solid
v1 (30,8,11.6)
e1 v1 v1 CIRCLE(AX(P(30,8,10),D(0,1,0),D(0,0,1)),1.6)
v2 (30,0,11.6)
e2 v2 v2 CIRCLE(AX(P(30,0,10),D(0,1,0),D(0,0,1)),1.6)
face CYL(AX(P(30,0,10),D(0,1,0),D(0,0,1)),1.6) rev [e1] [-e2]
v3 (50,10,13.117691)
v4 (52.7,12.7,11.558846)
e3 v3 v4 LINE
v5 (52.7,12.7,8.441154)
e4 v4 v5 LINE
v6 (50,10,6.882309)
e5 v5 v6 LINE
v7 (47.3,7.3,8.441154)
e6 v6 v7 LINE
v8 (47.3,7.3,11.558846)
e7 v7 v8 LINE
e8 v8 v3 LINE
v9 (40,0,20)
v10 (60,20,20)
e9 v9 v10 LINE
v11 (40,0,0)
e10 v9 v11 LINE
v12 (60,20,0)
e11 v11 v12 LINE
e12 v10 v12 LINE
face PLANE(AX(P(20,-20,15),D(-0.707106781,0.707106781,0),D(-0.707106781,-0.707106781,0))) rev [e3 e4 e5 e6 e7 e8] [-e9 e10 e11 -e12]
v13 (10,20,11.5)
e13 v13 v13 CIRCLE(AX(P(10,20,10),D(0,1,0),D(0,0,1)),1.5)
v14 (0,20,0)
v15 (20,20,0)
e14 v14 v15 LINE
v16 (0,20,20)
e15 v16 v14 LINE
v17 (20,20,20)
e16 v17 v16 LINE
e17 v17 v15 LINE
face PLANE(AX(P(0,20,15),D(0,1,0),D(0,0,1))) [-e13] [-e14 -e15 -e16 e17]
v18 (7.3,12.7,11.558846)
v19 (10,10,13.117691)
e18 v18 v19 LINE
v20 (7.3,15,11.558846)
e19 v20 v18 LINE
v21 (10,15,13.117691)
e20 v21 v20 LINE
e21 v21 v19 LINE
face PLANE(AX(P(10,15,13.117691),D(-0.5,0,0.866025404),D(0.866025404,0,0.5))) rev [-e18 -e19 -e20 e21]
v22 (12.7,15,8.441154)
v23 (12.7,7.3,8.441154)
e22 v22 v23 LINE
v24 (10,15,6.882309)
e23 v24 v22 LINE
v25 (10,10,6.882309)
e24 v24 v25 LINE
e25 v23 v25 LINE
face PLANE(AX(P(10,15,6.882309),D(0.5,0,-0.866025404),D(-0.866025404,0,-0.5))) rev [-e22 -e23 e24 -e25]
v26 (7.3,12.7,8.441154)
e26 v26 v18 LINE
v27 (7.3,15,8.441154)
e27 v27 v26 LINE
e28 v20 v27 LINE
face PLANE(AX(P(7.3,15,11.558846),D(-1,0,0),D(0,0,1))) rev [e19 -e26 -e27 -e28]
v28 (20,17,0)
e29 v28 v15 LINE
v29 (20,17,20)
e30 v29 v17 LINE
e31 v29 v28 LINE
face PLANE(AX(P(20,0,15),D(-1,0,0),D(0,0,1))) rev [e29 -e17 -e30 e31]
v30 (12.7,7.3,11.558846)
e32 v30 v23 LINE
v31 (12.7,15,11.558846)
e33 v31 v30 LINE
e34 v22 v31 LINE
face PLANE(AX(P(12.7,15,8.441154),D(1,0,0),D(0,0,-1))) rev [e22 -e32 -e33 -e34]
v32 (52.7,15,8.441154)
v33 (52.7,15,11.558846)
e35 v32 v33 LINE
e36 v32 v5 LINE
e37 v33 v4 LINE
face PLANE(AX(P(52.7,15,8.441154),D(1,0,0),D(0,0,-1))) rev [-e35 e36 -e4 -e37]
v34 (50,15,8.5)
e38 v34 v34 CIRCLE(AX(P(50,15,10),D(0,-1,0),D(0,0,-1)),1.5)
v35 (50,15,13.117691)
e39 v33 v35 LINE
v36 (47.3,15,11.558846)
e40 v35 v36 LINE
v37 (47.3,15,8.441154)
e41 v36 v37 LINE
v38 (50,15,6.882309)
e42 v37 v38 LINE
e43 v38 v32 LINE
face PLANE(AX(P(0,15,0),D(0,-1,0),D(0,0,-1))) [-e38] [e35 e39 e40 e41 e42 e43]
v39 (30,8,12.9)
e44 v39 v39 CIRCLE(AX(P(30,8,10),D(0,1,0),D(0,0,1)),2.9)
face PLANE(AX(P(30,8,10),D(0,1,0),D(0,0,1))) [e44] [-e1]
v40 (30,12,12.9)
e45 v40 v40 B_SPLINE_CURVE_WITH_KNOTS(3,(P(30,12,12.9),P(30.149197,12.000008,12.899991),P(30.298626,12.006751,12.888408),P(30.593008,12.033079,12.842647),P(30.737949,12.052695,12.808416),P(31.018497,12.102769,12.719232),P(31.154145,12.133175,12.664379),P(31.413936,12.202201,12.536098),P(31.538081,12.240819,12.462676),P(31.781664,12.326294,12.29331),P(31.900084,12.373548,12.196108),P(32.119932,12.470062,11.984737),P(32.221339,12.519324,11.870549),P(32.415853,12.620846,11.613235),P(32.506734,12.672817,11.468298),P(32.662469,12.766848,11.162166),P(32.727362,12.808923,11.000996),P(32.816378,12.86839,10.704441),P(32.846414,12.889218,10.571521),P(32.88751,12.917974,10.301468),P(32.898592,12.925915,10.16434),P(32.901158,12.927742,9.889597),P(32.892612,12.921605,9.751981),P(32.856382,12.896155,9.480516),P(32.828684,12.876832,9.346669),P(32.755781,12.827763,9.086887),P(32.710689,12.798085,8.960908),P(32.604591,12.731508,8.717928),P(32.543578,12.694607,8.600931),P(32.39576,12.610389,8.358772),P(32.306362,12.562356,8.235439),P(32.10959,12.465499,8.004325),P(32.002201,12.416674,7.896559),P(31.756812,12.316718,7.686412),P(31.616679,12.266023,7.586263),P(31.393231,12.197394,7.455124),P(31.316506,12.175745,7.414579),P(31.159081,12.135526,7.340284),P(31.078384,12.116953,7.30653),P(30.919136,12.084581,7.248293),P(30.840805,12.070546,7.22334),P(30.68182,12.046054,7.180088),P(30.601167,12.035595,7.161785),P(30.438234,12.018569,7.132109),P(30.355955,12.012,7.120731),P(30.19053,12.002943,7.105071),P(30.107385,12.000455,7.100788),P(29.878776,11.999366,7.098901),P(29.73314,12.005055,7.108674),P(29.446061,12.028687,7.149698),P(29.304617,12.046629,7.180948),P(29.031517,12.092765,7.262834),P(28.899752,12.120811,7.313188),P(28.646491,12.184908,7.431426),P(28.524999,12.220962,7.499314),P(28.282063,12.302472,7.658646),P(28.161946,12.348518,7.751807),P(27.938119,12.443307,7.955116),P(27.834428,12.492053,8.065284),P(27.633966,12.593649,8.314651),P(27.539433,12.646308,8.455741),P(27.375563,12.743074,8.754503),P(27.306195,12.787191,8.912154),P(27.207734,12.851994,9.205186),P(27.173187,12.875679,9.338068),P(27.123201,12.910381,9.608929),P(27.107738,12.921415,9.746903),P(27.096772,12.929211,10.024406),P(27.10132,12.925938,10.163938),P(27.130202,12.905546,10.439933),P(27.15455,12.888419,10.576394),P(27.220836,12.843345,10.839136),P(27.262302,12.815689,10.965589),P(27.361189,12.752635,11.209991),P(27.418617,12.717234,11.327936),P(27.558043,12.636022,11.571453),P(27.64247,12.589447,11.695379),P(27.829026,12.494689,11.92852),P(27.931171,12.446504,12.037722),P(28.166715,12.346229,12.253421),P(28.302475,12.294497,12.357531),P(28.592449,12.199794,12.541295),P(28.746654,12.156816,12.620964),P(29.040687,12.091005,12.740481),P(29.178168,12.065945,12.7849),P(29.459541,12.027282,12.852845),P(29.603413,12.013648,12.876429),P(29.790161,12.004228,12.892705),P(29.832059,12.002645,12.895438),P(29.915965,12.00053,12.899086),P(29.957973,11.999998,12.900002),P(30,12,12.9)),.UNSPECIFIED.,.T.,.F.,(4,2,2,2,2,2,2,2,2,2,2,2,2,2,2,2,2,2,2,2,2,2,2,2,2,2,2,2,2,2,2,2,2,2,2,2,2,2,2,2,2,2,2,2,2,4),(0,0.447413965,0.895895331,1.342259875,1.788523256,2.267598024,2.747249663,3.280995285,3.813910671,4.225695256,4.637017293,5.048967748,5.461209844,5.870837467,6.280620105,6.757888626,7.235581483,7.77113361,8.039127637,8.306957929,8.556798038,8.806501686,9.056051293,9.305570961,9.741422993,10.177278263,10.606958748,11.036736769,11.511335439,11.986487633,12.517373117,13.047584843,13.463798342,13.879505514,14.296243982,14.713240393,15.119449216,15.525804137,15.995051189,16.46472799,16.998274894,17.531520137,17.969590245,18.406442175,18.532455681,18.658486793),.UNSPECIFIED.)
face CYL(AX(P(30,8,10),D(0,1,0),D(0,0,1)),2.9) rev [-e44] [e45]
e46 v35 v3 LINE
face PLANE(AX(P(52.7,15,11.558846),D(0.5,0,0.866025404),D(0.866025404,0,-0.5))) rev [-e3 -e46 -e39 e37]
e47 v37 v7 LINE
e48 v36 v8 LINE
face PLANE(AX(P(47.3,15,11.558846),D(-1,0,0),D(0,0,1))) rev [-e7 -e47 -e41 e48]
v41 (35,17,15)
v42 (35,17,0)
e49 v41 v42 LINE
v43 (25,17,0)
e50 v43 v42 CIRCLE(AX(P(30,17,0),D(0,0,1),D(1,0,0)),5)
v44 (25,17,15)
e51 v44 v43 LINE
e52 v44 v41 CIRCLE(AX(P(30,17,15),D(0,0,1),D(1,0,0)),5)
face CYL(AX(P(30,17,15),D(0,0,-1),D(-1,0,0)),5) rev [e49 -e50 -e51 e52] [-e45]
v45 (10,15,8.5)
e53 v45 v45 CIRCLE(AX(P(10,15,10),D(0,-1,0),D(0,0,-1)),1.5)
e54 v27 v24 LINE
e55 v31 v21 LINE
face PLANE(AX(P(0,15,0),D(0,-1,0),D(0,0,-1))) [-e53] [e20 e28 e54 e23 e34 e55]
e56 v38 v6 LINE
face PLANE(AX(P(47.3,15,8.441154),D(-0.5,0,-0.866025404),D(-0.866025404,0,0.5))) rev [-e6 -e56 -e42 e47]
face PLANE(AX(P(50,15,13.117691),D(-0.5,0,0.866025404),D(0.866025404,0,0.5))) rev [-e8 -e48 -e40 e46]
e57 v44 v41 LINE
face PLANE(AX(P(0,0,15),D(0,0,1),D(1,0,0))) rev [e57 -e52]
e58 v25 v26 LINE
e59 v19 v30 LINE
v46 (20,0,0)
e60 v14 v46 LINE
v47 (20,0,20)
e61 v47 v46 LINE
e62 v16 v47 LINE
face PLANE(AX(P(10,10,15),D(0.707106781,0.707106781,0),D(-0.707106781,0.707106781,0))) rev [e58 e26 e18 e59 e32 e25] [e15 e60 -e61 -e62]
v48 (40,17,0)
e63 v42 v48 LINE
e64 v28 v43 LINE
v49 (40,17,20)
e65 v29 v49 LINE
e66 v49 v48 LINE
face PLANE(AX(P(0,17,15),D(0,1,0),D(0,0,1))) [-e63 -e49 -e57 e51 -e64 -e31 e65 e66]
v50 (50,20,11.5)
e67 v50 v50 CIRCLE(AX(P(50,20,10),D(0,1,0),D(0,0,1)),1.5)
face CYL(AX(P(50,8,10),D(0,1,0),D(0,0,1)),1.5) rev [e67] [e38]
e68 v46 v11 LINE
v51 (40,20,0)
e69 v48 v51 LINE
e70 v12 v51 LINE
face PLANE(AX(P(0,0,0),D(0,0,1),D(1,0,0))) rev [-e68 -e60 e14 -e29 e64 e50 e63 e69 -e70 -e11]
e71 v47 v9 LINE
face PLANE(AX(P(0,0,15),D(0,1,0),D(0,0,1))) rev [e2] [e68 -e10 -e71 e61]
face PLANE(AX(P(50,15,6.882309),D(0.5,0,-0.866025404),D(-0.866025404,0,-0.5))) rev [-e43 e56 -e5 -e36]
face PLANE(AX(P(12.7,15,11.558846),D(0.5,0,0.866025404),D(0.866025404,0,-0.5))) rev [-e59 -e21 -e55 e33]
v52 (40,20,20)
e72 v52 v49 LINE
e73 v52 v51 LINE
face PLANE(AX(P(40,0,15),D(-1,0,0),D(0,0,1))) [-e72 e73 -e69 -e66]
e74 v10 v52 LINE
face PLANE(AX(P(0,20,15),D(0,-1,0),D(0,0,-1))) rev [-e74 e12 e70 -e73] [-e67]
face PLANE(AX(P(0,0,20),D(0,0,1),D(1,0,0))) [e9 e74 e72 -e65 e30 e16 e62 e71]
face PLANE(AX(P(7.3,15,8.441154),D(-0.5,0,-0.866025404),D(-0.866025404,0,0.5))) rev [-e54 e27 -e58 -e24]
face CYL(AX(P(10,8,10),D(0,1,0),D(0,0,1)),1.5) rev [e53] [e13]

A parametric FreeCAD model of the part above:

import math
import FreeCAD as App
import Part
import Sketcher
Q = App.Units.Quantity

doc = App.newDocument("Part")
body = doc.addObject("PartDesign::Body", "Body")

# Sketch on XY plane
sketch1 = body.newObject("Sketcher::SketchObject", "Sketch")
sketch1.AttachmentSupport = (doc.getObject("XY_Plane"), [""])
sketch1.MapMode = "FlatFace"
sketch1.addGeometry([
    Part.LineSegment(App.Vector(0, 20, 0), App.Vector(20, 0, 0)),  # 0
    Part.LineSegment(App.Vector(20, 0, 0), App.Vector(40, 0, 0)),  # 1
    Part.LineSegment(App.Vector(40, 0, 0), App.Vector(60, 20, 0)),  # 2
    Part.LineSegment(App.Vector(60, 20, 0), App.Vector(40, 20, 0)),  # 3
    Part.LineSegment(App.Vector(40, 20, 0), App.Vector(40, 17, 0)),  # 4
    Part.LineSegment(App.Vector(40, 17, 0), App.Vector(35, 17, 0)),  # 5
    Part.ArcOfCircle(Part.Circle(App.Vector(30, 17, 0), App.Vector(0, 0, 1), 5), math.radians(180), math.radians(360)),  # 6
    Part.LineSegment(App.Vector(25, 17, 0), App.Vector(20, 17, 0)),  # 7
    Part.LineSegment(App.Vector(20, 17, 0), App.Vector(20, 20, 0)),  # 8
    Part.LineSegment(App.Vector(20, 20, 0), App.Vector(0, 20, 0)),  # 9
], False)
sketch1.addConstraint([
    Sketcher.Constraint("Coincident", 0, 2, 1, 1),
    Sketcher.Constraint("Coincident", 1, 2, 2, 1),
    Sketcher.Constraint("Coincident", 2, 2, 3, 1),
    Sketcher.Constraint("Coincident", 3, 2, 4, 1),
    Sketcher.Constraint("Coincident", 4, 2, 5, 1),
    Sketcher.Constraint("Coincident", 5, 2, 6, 2),
    Sketcher.Constraint("Coincident", 6, 1, 7, 1),
    Sketcher.Constraint("Coincident", 7, 2, 8, 1),
    Sketcher.Constraint("Coincident", 8, 2, 9, 1),
    Sketcher.Constraint("Coincident", 9, 2, 0, 1),
    Sketcher.Constraint("Horizontal", 1),
    Sketcher.Constraint("Horizontal", 3),
    Sketcher.Constraint("Vertical", 4),
    Sketcher.Constraint("Horizontal", 5),
    Sketcher.Constraint("Horizontal", 7),
    Sketcher.Constraint("Vertical", 8),
    Sketcher.Constraint("Horizontal", 9),
    Sketcher.Constraint("PointOnObject", 0, 2, -1),
    Sketcher.Constraint("PointOnObject", 9, 2, -2),
    Sketcher.Constraint("Perpendicular", 0, 2),
    Sketcher.Constraint("Horizontal", 6, 3, 4, 2),
    Sketcher.Constraint("Horizontal", 5, 2, 6, 1),
    Sketcher.Constraint("Horizontal", 3, 2, 8, 2),
    Sketcher.Constraint("Vertical", 1, 2, 3, 2),
    Sketcher.Constraint("Vertical", 0, 2, 7, 2),
    Sketcher.Constraint("Equal", 1, 3),
    Sketcher.Constraint("Equal", 5, 7),
    Sketcher.Constraint("Equal", 3, 9),
    Sketcher.Constraint("Radius", 6, 5.0),
    Sketcher.Constraint("DistanceX", 1, 1, 1, 2, 20.0),
    Sketcher.Constraint("DistanceY", 4, 2, 4, 1, 3.0),
])
pad1 = body.newObject("PartDesign::Pad", "Pad")
pad1.Profile = sketch1
pad1.Length = 15

# Sketch on XY plane
sketch2 = body.newObject("Sketcher::SketchObject", "Sketch001")
sketch2.AttachmentSupport = (doc.getObject("XY_Plane"), [""])
sketch2.MapMode = "FlatFace"
sketch2.AttachmentOffset = App.Placement(App.Vector(0, 0, 15), App.Rotation())
sketch2.addGeometry([
    Part.LineSegment(App.Vector(40, 17, 0), App.Vector(20, 17, 0)),  # 0
    Part.LineSegment(App.Vector(20, 17, 0), App.Vector(20, 20, 0)),  # 1
    Part.LineSegment(App.Vector(20, 20, 0), App.Vector(0, 20, 0)),  # 2
    Part.LineSegment(App.Vector(0, 20, 0), App.Vector(20, 0, 0)),  # 3
    Part.LineSegment(App.Vector(20, 0, 0), App.Vector(40, 0, 0)),  # 4
    Part.LineSegment(App.Vector(40, 0, 0), App.Vector(60, 20, 0)),  # 5
    Part.LineSegment(App.Vector(60, 20, 0), App.Vector(40, 20, 0)),  # 6
    Part.LineSegment(App.Vector(40, 20, 0), App.Vector(40, 17, 0)),  # 7
], False)
sketch2.addConstraint([
    Sketcher.Constraint("Coincident", 0, 2, 1, 1),
    Sketcher.Constraint("Coincident", 1, 2, 2, 1),
    Sketcher.Constraint("Coincident", 2, 2, 3, 1),
    Sketcher.Constraint("Coincident", 3, 2, 4, 1),
    Sketcher.Constraint("Coincident", 4, 2, 5, 1),
    Sketcher.Constraint("Coincident", 5, 2, 6, 1),
    Sketcher.Constraint("Coincident", 6, 2, 7, 1),
    Sketcher.Constraint("Coincident", 7, 2, 0, 1),
    Sketcher.Constraint("Horizontal", 0),
    Sketcher.Constraint("Vertical", 1),
    Sketcher.Constraint("Horizontal", 2),
    Sketcher.Constraint("Horizontal", 4),
    Sketcher.Constraint("Horizontal", 6),
    Sketcher.Constraint("Vertical", 7),
    Sketcher.Constraint("PointOnObject", 2, 2, -2),
    Sketcher.Constraint("PointOnObject", 3, 2, -1),
    Sketcher.Constraint("Perpendicular", 3, 5),
    Sketcher.Constraint("Horizontal", 2, 2, 5, 2),
    Sketcher.Constraint("Vertical", 1, 2, 3, 2),
    Sketcher.Constraint("Vertical", 4, 2, 6, 2),
    Sketcher.Constraint("Equal", 0, 2),
    Sketcher.Constraint("Equal", 4, 6),
    Sketcher.Constraint("DistanceX", 0, 2, 0, 1, 20.0),
    Sketcher.Constraint("DistanceY", 1, 1, 1, 2, 3.0),
])
pad2 = body.newObject("PartDesign::Pad", "Pad001")
pad2.Profile = sketch2
pad2.Length = 5

# Sketch on XZ plane
sketch3 = body.newObject("Sketcher::SketchObject", "Sketch002")
sketch3.AttachmentSupport = (doc.getObject("XZ_Plane"), [""])
sketch3.MapMode = "FlatFace"
sketch3.AttachmentOffset = App.Placement(App.Vector(0, 0, -20), App.Rotation())
sketch3.addGeometry([
    Part.ArcOfCircle(Part.Circle(App.Vector(30, 10, 0), App.Vector(0, 0, 1), 1.6), math.radians(-90), math.radians(0)),
    Part.ArcOfCircle(Part.Circle(App.Vector(30, 10, 0), App.Vector(0, 0, 1), 1.6), math.radians(0), math.radians(270)),
], False)
sketch3.addConstraint([
    Sketcher.Constraint("Tangent", 0, 1, 1, 2),
    Sketcher.Constraint("Coincident", 1, 1, 0, 2),
    Sketcher.Constraint("Horizontal", 0, 3, 1, 1),
    Sketcher.Constraint("Vertical", 1, 3, 0, 1),
    Sketcher.Constraint("Radius", 0, 1.6),
    Sketcher.Constraint("DistanceX", -1, 1, 0, 3, 30.0),
    Sketcher.Constraint("DistanceY", -1, 1, 0, 3, 10.0),
])
pocket1 = body.newObject("PartDesign::Pocket", "Pocket")
pocket1.Profile = sketch3
pocket1.Length = 20
pocket1.Reversed = True

# Sketch on XZ plane
sketch4 = body.newObject("Sketcher::SketchObject", "Sketch003")
sketch4.AttachmentSupport = (doc.getObject("XZ_Plane"), [""])
sketch4.MapMode = "FlatFace"
sketch4.AttachmentOffset = App.Placement(App.Vector(0, 0, -20), App.Rotation())
sketch4.addGeometry([
    Part.Circle(App.Vector(30, 10, 0), App.Vector(0, 0, 1), 2.9),
    Part.Circle(App.Vector(30, 10, 0), App.Vector(0, 0, 1), 1.6),
], False)
sketch4.addConstraint([
    Sketcher.Constraint("Coincident", 1, 3, 0, 3),
    Sketcher.Constraint("Diameter", 0, 5.8),
    Sketcher.Constraint("Diameter", 1, 3.2),
    Sketcher.Constraint("DistanceX", -1, 1, 0, 3, 30.0),
    Sketcher.Constraint("DistanceY", -1, 1, 0, 3, 10.0),
])
pocket2 = body.newObject("PartDesign::Pocket", "Pocket001")
pocket2.Profile = sketch4
pocket2.Length = 12
pocket2.Reversed = True

# Sketch on XZ plane
sketch5 = body.newObject("Sketcher::SketchObject", "Sketch004")
sketch5.AttachmentSupport = (doc.getObject("XZ_Plane"), [""])
sketch5.MapMode = "FlatFace"
sketch5.AttachmentOffset = App.Placement(App.Vector(0, 0, -20), App.Rotation())
sketch5.addGeometry([
    Part.ArcOfCircle(Part.Circle(App.Vector(50, 10, 0), App.Vector(0, 0, 1), 1.5), math.radians(-45), math.radians(0)),  # 0
    Part.ArcOfCircle(Part.Circle(App.Vector(50, 10, 0), App.Vector(0, 0, 1), 1.5), math.radians(-135), math.radians(-45)),  # 1
    Part.ArcOfCircle(Part.Circle(App.Vector(50, 10, 0), App.Vector(0, 0, 1), 1.5), math.radians(135), math.radians(225)),  # 2
    Part.ArcOfCircle(Part.Circle(App.Vector(50, 10, 0), App.Vector(0, 0, 1), 1.5), math.radians(45), math.radians(135)),  # 3
    Part.ArcOfCircle(Part.Circle(App.Vector(50, 10, 0), App.Vector(0, 0, 1), 1.5), math.radians(0), math.radians(45)),  # 4
    Part.ArcOfCircle(Part.Circle(App.Vector(10, 10, 0), App.Vector(0, 0, 1), 1.5), math.radians(-45), math.radians(0)),  # 5
    Part.ArcOfCircle(Part.Circle(App.Vector(10, 10, 0), App.Vector(0, 0, 1), 1.5), math.radians(-135), math.radians(-45)),  # 6
    Part.ArcOfCircle(Part.Circle(App.Vector(10, 10, 0), App.Vector(0, 0, 1), 1.5), math.radians(135), math.radians(225)),  # 7
    Part.ArcOfCircle(Part.Circle(App.Vector(10, 10, 0), App.Vector(0, 0, 1), 1.5), math.radians(45), math.radians(135)),  # 8
    Part.ArcOfCircle(Part.Circle(App.Vector(10, 10, 0), App.Vector(0, 0, 1), 1.5), math.radians(0), math.radians(45)),  # 9
], False)
sketch5.addConstraint([
    Sketcher.Constraint("Tangent", 0, 1, 1, 2),
    Sketcher.Constraint("Tangent", 1, 1, 2, 2),
    Sketcher.Constraint("Tangent", 2, 1, 3, 2),
    Sketcher.Constraint("Tangent", 3, 1, 4, 2),
    Sketcher.Constraint("Tangent", 4, 1, 0, 2),
    Sketcher.Constraint("Tangent", 5, 1, 6, 2),
    Sketcher.Constraint("Tangent", 6, 1, 7, 2),
    Sketcher.Constraint("Tangent", 7, 1, 8, 2),
    Sketcher.Constraint("Tangent", 8, 1, 9, 2),
    Sketcher.Constraint("Tangent", 9, 1, 5, 2),
    Sketcher.Constraint("Coincident", 2, 3, 0, 3),
    Sketcher.Constraint("Coincident", 7, 3, 5, 3),
    Sketcher.Constraint("Equal", 4, 5),
    Sketcher.Constraint("Horizontal", 4, 3, 5, 3),
    Sketcher.Constraint("Horizontal", 0, 1, 1, 1),
    Sketcher.Constraint("Horizontal", 2, 1, 3, 1),
    Sketcher.Constraint("Horizontal", 9, 3, 4, 1),
    Sketcher.Constraint("Horizontal", 1, 1, 5, 1),
    Sketcher.Constraint("Horizontal", 5, 1, 6, 1),
    Sketcher.Constraint("Horizontal", 3, 1, 7, 1),
    Sketcher.Constraint("Horizontal", 7, 1, 8, 1),
    Sketcher.Constraint("Horizontal", 4, 1, 9, 1),
    Sketcher.Constraint("Vertical", 1, 1, 2, 1),
    Sketcher.Constraint("Radius", 0, 1.5),
    Sketcher.Constraint("DistanceX", -1, 1, 0, 3, 50.0),
    Sketcher.Constraint("DistanceY", -1, 1, 0, 3, 10.0),
    Sketcher.Constraint("DistanceX", -1, 1, 5, 3, 10.0),
    Sketcher.Constraint("DistanceX", -1, 1, 0, 1, 51.06066),
])
pocket3 = body.newObject("PartDesign::Pocket", "Pocket002")
pocket3.Profile = sketch5
pocket3.Length = 12
pocket3.Reversed = True

# Sketch on XZ plane
sketch6 = body.newObject("Sketcher::SketchObject", "Sketch005")
sketch6.AttachmentSupport = (doc.getObject("XZ_Plane"), [""])
sketch6.MapMode = "FlatFace"
sketch6.addGeometry([
    Part.LineSegment(App.Vector(10, 6.9, 0), App.Vector(12.7, 8.4, 0)),  # 0
    Part.LineSegment(App.Vector(12.7, 8.4, 0), App.Vector(12.7, 11.6, 0)),  # 1
    Part.LineSegment(App.Vector(12.7, 11.6, 0), App.Vector(10, 13.1, 0)),  # 2
    Part.LineSegment(App.Vector(10, 13.1, 0), App.Vector(7.3, 11.6, 0)),  # 3
    Part.LineSegment(App.Vector(7.3, 11.6, 0), App.Vector(7.3, 8.4, 0)),  # 4
    Part.LineSegment(App.Vector(7.3, 8.4, 0), App.Vector(10, 6.9, 0)),  # 5
    Part.Circle(App.Vector(10, 10, 0), App.Vector(0, 0, 1), 1.5),  # 6
    Part.LineSegment(App.Vector(50, 6.9, 0), App.Vector(52.7, 8.4, 0)),  # 7
    Part.LineSegment(App.Vector(52.7, 8.4, 0), App.Vector(52.7, 11.6, 0)),  # 8
    Part.LineSegment(App.Vector(52.7, 11.6, 0), App.Vector(50, 13.1, 0)),  # 9
    Part.LineSegment(App.Vector(50, 13.1, 0), App.Vector(47.3, 11.6, 0)),  # 10
    Part.LineSegment(App.Vector(47.3, 11.6, 0), App.Vector(47.3, 8.4, 0)),  # 11
    Part.LineSegment(App.Vector(47.3, 8.4, 0), App.Vector(50, 6.9, 0)),  # 12
    Part.Circle(App.Vector(50, 10, 0), App.Vector(0, 0, 1), 1.5),  # 13
], False)
sketch6.addConstraint([
    Sketcher.Constraint("Coincident", 0, 2, 1, 1),
    Sketcher.Constraint("Coincident", 1, 2, 2, 1),
    Sketcher.Constraint("Coincident", 2, 2, 3, 1),
    Sketcher.Constraint("Coincident", 3, 2, 4, 1),
    Sketcher.Constraint("Coincident", 4, 2, 5, 1),
    Sketcher.Constraint("Coincident", 5, 2, 0, 1),
    Sketcher.Constraint("Coincident", 7, 2, 8, 1),
    Sketcher.Constraint("Coincident", 8, 2, 9, 1),
    Sketcher.Constraint("Coincident", 9, 2, 10, 1),
    Sketcher.Constraint("Coincident", 10, 2, 11, 1),
    Sketcher.Constraint("Coincident", 11, 2, 12, 1),
    Sketcher.Constraint("Coincident", 12, 2, 7, 1),
    Sketcher.Constraint("Vertical", 1),
    Sketcher.Constraint("Vertical", 4),
    Sketcher.Constraint("Vertical", 8),
    Sketcher.Constraint("Vertical", 11),
    Sketcher.Constraint("Equal", 6, 13),
    Sketcher.Constraint("Parallel", 0, 3),
    Sketcher.Constraint("Parallel", 2, 5),
    Sketcher.Constraint("Parallel", 3, 7),
    Sketcher.Constraint("Parallel", 5, 9),
    Sketcher.Constraint("Parallel", 7, 10),
    Sketcher.Constraint("Parallel", 9, 12),
    Sketcher.Constraint("Horizontal", 6, 3, 13, 3),
    Sketcher.Constraint("Horizontal", 1, 2, 3, 2),
    Sketcher.Constraint("Horizontal", 0, 2, 4, 2),
    Sketcher.Constraint("Horizontal", 4, 2, 7, 2),
    Sketcher.Constraint("Horizontal", 3, 2, 8, 2),
    Sketcher.Constraint("Horizontal", 2, 2, 9, 2),
    Sketcher.Constraint("Horizontal", 8, 2, 10, 2),
    Sketcher.Constraint("Horizontal", 7, 2, 11, 2),
    Sketcher.Constraint("Vertical", 6, 3, 2, 2),
    Sketcher.Constraint("Vertical", 2, 2, 5, 2),
    Sketcher.Constraint("Vertical", 13, 3, 9, 2),
    Sketcher.Constraint("Diameter", 6, 3.0),
    Sketcher.Constraint("Angle", 0, Q("30 deg")),
    Sketcher.Constraint("DistanceX", -1, 1, 6, 3, 10.0),
    Sketcher.Constraint("DistanceY", -1, 1, 6, 3, 10.0),
    Sketcher.Constraint("DistanceX", -1, 1, 13, 3, 50.0),
    Sketcher.Constraint("DistanceX", -1, 1, 0, 2, 12.7),
    Sketcher.Constraint("DistanceY", 1, 1, 1, 2, 3.117691),
    Sketcher.Constraint("DistanceY", -1, 1, 2, 2, 13.117691),
])
pocket4 = body.newObject("PartDesign::Pocket", "Pocket003")
pocket4.Profile = sketch6
pocket4.Length = 15

doc.recompute()
